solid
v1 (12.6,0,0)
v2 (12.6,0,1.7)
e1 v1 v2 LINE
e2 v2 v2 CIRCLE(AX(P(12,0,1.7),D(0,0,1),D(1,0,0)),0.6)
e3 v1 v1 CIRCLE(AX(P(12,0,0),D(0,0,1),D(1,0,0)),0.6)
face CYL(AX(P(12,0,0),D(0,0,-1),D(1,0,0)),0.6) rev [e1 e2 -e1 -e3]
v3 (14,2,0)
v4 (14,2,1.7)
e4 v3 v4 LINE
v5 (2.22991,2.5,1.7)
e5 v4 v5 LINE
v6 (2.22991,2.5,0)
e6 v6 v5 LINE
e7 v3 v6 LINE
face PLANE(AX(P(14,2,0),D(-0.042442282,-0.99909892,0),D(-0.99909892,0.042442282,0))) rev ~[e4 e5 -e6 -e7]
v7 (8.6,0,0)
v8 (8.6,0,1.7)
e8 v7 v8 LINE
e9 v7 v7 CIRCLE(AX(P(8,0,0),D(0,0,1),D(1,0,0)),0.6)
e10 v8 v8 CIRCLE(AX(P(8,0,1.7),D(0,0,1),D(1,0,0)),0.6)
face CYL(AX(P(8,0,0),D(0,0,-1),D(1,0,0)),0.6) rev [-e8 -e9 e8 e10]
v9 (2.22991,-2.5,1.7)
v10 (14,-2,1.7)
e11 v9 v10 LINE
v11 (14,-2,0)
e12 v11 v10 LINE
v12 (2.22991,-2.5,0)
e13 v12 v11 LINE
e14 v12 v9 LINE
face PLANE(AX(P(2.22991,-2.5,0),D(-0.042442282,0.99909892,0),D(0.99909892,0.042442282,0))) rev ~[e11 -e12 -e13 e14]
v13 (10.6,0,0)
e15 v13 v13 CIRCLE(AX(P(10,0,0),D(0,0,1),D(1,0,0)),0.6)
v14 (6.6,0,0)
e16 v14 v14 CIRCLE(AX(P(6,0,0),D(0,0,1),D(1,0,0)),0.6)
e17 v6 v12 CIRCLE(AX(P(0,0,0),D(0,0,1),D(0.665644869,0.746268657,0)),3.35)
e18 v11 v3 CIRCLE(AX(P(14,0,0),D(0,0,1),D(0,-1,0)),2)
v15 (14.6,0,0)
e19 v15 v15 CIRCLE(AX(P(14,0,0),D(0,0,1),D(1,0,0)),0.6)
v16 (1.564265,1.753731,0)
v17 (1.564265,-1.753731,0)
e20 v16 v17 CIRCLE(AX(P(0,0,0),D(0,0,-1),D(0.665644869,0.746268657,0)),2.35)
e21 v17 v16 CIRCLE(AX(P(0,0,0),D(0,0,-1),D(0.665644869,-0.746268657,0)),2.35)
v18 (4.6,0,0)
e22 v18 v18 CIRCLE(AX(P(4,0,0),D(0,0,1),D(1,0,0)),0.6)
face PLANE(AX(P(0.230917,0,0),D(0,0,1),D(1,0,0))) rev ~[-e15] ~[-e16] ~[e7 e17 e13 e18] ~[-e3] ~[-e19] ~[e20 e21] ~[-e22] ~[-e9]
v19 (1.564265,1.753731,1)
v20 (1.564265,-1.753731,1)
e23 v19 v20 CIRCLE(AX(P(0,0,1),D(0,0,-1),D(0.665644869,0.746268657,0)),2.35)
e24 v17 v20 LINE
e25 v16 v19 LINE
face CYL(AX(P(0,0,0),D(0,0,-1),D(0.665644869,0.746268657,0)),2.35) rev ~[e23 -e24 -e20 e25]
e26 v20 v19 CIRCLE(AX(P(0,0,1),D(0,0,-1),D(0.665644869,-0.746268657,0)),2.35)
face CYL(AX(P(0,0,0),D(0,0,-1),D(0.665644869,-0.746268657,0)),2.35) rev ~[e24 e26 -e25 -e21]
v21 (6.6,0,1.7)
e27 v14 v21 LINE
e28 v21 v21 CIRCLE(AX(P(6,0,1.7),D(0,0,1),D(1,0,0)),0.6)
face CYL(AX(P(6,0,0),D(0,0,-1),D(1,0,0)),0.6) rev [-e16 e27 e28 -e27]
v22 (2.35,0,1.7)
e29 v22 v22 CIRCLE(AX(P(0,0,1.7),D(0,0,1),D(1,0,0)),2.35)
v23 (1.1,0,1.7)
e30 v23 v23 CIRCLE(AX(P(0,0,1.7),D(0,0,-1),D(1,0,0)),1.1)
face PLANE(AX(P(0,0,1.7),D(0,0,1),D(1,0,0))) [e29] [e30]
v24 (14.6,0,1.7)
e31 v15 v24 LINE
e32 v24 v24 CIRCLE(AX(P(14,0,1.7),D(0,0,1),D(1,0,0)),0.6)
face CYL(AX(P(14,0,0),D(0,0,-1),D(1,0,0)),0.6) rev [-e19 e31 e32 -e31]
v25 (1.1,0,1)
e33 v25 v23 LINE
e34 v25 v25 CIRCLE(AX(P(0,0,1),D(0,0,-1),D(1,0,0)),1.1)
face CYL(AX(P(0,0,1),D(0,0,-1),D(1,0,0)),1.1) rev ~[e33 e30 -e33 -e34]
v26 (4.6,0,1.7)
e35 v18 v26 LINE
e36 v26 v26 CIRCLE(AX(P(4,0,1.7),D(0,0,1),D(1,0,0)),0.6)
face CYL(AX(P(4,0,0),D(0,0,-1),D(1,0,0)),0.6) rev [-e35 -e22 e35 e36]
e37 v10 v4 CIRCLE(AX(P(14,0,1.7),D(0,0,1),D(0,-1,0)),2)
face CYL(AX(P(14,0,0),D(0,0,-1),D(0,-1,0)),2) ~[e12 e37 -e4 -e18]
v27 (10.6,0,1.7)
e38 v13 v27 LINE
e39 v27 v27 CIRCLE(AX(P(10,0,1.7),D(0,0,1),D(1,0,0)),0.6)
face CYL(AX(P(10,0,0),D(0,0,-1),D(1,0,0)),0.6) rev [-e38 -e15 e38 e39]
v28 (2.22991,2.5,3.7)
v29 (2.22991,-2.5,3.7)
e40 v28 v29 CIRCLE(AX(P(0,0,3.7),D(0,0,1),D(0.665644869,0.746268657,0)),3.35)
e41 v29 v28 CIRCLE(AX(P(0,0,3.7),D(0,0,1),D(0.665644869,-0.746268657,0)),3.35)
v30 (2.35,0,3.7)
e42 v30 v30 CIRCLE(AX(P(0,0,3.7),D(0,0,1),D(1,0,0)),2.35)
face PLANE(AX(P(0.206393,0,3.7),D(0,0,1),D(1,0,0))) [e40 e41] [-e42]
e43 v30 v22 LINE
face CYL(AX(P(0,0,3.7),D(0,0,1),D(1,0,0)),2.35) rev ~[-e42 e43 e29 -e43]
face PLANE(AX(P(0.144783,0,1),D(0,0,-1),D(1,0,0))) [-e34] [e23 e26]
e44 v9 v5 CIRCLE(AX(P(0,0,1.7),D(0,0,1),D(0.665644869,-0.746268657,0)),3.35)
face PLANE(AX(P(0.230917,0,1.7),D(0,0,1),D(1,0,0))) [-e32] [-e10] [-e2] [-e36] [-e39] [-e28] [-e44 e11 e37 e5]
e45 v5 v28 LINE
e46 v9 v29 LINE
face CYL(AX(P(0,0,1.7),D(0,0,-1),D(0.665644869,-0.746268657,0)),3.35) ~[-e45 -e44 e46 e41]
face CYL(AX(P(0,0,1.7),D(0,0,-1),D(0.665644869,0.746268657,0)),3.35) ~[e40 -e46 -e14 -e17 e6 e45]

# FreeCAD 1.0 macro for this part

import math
import FreeCAD as App
import Part
import Sketcher

V = App.Vector
Q = App.Units.Quantity

doc = App.newDocument("Part")
params = doc.addObject("Spreadsheet::Sheet", "Params")
for row, (alias, value) in enumerate([
    ("sketch1_radius", "2 mm"),
    ("sketch1_diameter", "1.2 mm"),
    ("sketch1_radius2", "3.35 mm"),
    ("pad1_length", "1.7 mm"),
    ("sketch2_radius", "3.35 mm"),
    ("pad2_length", "2 mm"),
    ("sketch3_radius", "2.35 mm"),
    ("pocket1_length", "1 mm"),
    ("sketch4_diameter", "2.2 mm"),
    ("sketch5_diameter", "4.7 mm"),
    ("pocket3_length", "2 mm"),
], start=1):
    params.set(f"A{row}", alias)
    params.set(f"B{row}", "=" + value)
    params.setAlias(f"B{row}", alias)

body = doc.addObject("PartDesign::Body", "Body")

# Sketch on XY plane
sketch1 = body.newObject("Sketcher::SketchObject", "Sketch")
sketch1.AttachmentSupport = (doc.getObject("XY_Plane"), [""])
sketch1.MapMode = "FlatFace"
sketch1.addGeometry(Part.ArcOfCircle(Part.Circle(V(0, 0, 0), V(0, 0, 1), 3.4), math.radians(48), math.radians(312)), False)
sketch1.addGeometry(Part.LineSegment(V(2.2, -2.5, 0), V(14, -2, 0)), False)
sketch1.addGeometry(Part.ArcOfCircle(Part.Circle(V(14, 0, 0), V(0, 0, 1), 2), math.radians(-90), math.radians(90)), False)
sketch1.addGeometry(Part.LineSegment(V(14, 2, 0), V(2.2, 2.5, 0)), False)
sketch1.addGeometry(Part.Circle(V(4, 0, 0), V(0, 0, 1), 0.6), False)
sketch1.addGeometry(Part.Circle(V(6, 0, 0), V(0, 0, 1), 0.6), False)
sketch1.addGeometry(Part.Circle(V(8, 0, 0), V(0, 0, 1), 0.6), False)
sketch1.addGeometry(Part.Circle(V(10, 0, 0), V(0, 0, 1), 0.6), False)
sketch1.addGeometry(Part.Circle(V(12, 0, 0), V(0, 0, 1), 0.6), False)
sketch1.addGeometry(Part.Circle(V(14, 0, 0), V(0, 0, 1), 0.6), False)
sketch1.addConstraint(Sketcher.Constraint("Coincident", 0, 2, 1, 1))
sketch1.addConstraint(Sketcher.Constraint("Coincident", 1, 2, 2, 1))
sketch1.addConstraint(Sketcher.Constraint("Coincident", 2, 2, 3, 1))
sketch1.addConstraint(Sketcher.Constraint("Coincident", 3, 2, 0, 1))
sketch1.addConstraint(Sketcher.Constraint("Coincident", 0, 3, -1, 1))
sketch1.addConstraint(Sketcher.Constraint("Coincident", 9, 3, 2, 3))
sketch1.addConstraint(Sketcher.Constraint("Equal", 4, 5))
sketch1.addConstraint(Sketcher.Constraint("Equal", 5, 6))
sketch1.addConstraint(Sketcher.Constraint("Equal", 6, 7))
sketch1.addConstraint(Sketcher.Constraint("Equal", 7, 8))
sketch1.addConstraint(Sketcher.Constraint("Equal", 8, 9))
sketch1.addConstraint(Sketcher.Constraint("Symmetric", 1, 2, 2, 2, -1))
sketch1.addConstraint(Sketcher.Constraint("PointOnObject", 4, 3, -1))
sketch1.addConstraint(Sketcher.Constraint("PointOnObject", 5, 3, -1))
sketch1.addConstraint(Sketcher.Constraint("PointOnObject", 6, 3, -1))
sketch1.addConstraint(Sketcher.Constraint("PointOnObject", 7, 3, -1))
sketch1.addConstraint(Sketcher.Constraint("PointOnObject", 8, 3, -1))
sketch1.addConstraint(Sketcher.Constraint("Vertical", 9, 3, 1, 2))
sketch1.addConstraint(Sketcher.Constraint("Vertical", 0, 2, 3, 2))
sketch1.addConstraint(Sketcher.Constraint("Radius", 2, Q("2 mm")))
sketch1.addConstraint(Sketcher.Constraint("Diameter", 4, Q("1.2 mm")))
sketch1.addConstraint(Sketcher.Constraint("Radius", 0, Q("3.35 mm")))
sketch1.addConstraint(Sketcher.Constraint("DistanceX", -1, 1, 2, 3, Q("14 mm")))
sketch1.addConstraint(Sketcher.Constraint("DistanceX", -1, 1, 4, 3, Q("4 mm")))
sketch1.addConstraint(Sketcher.Constraint("DistanceX", -1, 1, 5, 3, Q("6 mm")))
sketch1.addConstraint(Sketcher.Constraint("DistanceX", -1, 1, 6, 3, Q("8 mm")))
sketch1.addConstraint(Sketcher.Constraint("DistanceX", -1, 1, 7, 3, Q("10 mm")))
sketch1.addConstraint(Sketcher.Constraint("DistanceX", -1, 1, 8, 3, Q("12 mm")))
sketch1.addConstraint(Sketcher.Constraint("DistanceY", 0, 2, 3, 2, Q("5 mm")))
sketch1.setExpression("Constraints[19]", "Params.sketch1_radius")
sketch1.setExpression("Constraints[20]", "Params.sketch1_diameter")
sketch1.setExpression("Constraints[21]", "Params.sketch1_radius2")
pad1 = body.newObject("PartDesign::Pad", "Pad")
pad1.Profile = sketch1
pad1.setExpression("Length", "Params.pad1_length")

# Sketch on XY plane
sketch2 = body.newObject("Sketcher::SketchObject", "Sketch001")
sketch2.AttachmentSupport = (doc.getObject("XY_Plane"), [""])
sketch2.MapMode = "FlatFace"
sketch2.AttachmentOffset = App.Placement(V(0, 0, 1.7), App.Rotation())
sketch2.addGeometry(Part.ArcOfCircle(Part.Circle(V(0, 0, 0), V(0, 0, 1), 3.4), math.radians(-48), math.radians(48)), False)
sketch2.addGeometry(Part.ArcOfCircle(Part.Circle(V(0, 0, 0), V(0, 0, 1), 3.4), math.radians(48), math.radians(312)), False)
sketch2.addConstraint(Sketcher.Constraint("Tangent", 0, 1, 1, 2))
sketch2.addConstraint(Sketcher.Constraint("Coincident", 1, 1, 0, 2))
sketch2.addConstraint(Sketcher.Constraint("Coincident", 0, 3, -1, 1))
sketch2.addConstraint(Sketcher.Constraint("Vertical", 0, 1, 1, 1))
sketch2.addConstraint(Sketcher.Constraint("Radius", 0, Q("3.35 mm")))
sketch2.addConstraint(Sketcher.Constraint("DistanceY", 0, 1, 1, 1, Q("5 mm")))
sketch2.setExpression("Constraints[4]", "Params.sketch2_radius")
pad2 = body.newObject("PartDesign::Pad", "Pad001")
pad2.Profile = sketch2
pad2.setExpression("Length", "Params.pad2_length")

# Sketch on XY plane
sketch3 = body.newObject("Sketcher::SketchObject", "Sketch002")
sketch3.AttachmentSupport = (doc.getObject("XY_Plane"), [""])
sketch3.MapMode = "FlatFace"
sketch3.addGeometry(Part.ArcOfCircle(Part.Circle(V(0, 0, 0), V(0, 0, 1), 2.4), math.radians(48), math.radians(312)), False)
sketch3.addGeometry(Part.ArcOfCircle(Part.Circle(V(0, 0, 0), V(0, 0, 1), 2.4), math.radians(-48), math.radians(48)), False)
sketch3.addConstraint(Sketcher.Constraint("Tangent", 0, 1, 1, 2))
sketch3.addConstraint(Sketcher.Constraint("Coincident", 1, 1, 0, 2))
sketch3.addConstraint(Sketcher.Constraint("Coincident", 0, 3, -1, 1))
sketch3.addConstraint(Sketcher.Constraint("Vertical", 0, 1, 1, 1))
sketch3.addConstraint(Sketcher.Constraint("Radius", 0, Q("2.35 mm")))
sketch3.addConstraint(Sketcher.Constraint("DistanceY", -1, 1, 0, 1, Q("1.753731 mm")))
sketch3.setExpression("Constraints[4]", "Params.sketch3_radius")
pocket1 = body.newObject("PartDesign::Pocket", "Pocket")
pocket1.Profile = sketch3
pocket1.setExpression("Length", "Params.pocket1_length")
pocket1.Reversed = True

# Sketch on XY plane
sketch4 = body.newObject("Sketcher::SketchObject", "Sketch003")
sketch4.AttachmentSupport = (doc.getObject("XY_Plane"), [""])
sketch4.MapMode = "FlatFace"
sketch4.AttachmentOffset = App.Placement(V(0, 0, 1), App.Rotation())
sketch4.addGeometry(Part.Circle(V(0, 0, 0), V(0, 0, 1), 1.1), False)
sketch4.addConstraint(Sketcher.Constraint("Coincident", 0, 3, -1, 1))
sketch4.addConstraint(Sketcher.Constraint("Diameter", 0, Q("2.2 mm")))
sketch4.setExpression("Constraints[1]", "Params.sketch4_diameter")
pocket2 = body.newObject("PartDesign::Pocket", "Pocket001")
pocket2.Profile = sketch4
pocket2.Type = "ThroughAll"
pocket2.Reversed = True

# Sketch on XY plane
sketch5 = body.newObject("Sketcher::SketchObject", "Sketch004")
sketch5.AttachmentSupport = (doc.getObject("XY_Plane"), [""])
sketch5.MapMode = "FlatFace"
sketch5.AttachmentOffset = App.Placement(V(0, 0, 3.7), App.Rotation())
sketch5.addGeometry(Part.Circle(V(0, 0, 0), V(0, 0, 1), 2.4), False)
sketch5.addConstraint(Sketcher.Constraint("Coincident", 0, 3, -1, 1))
sketch5.addConstraint(Sketcher.Constraint("Diameter", 0, Q("4.7 mm")))
sketch5.setExpression("Constraints[1]", "Params.sketch5_diameter")
pocket3 = body.newObject("PartDesign::Pocket", "Pocket002")
pocket3.Profile = sketch5
pocket3.setExpression("Length", "Params.pocket3_length")

doc.recompute()
